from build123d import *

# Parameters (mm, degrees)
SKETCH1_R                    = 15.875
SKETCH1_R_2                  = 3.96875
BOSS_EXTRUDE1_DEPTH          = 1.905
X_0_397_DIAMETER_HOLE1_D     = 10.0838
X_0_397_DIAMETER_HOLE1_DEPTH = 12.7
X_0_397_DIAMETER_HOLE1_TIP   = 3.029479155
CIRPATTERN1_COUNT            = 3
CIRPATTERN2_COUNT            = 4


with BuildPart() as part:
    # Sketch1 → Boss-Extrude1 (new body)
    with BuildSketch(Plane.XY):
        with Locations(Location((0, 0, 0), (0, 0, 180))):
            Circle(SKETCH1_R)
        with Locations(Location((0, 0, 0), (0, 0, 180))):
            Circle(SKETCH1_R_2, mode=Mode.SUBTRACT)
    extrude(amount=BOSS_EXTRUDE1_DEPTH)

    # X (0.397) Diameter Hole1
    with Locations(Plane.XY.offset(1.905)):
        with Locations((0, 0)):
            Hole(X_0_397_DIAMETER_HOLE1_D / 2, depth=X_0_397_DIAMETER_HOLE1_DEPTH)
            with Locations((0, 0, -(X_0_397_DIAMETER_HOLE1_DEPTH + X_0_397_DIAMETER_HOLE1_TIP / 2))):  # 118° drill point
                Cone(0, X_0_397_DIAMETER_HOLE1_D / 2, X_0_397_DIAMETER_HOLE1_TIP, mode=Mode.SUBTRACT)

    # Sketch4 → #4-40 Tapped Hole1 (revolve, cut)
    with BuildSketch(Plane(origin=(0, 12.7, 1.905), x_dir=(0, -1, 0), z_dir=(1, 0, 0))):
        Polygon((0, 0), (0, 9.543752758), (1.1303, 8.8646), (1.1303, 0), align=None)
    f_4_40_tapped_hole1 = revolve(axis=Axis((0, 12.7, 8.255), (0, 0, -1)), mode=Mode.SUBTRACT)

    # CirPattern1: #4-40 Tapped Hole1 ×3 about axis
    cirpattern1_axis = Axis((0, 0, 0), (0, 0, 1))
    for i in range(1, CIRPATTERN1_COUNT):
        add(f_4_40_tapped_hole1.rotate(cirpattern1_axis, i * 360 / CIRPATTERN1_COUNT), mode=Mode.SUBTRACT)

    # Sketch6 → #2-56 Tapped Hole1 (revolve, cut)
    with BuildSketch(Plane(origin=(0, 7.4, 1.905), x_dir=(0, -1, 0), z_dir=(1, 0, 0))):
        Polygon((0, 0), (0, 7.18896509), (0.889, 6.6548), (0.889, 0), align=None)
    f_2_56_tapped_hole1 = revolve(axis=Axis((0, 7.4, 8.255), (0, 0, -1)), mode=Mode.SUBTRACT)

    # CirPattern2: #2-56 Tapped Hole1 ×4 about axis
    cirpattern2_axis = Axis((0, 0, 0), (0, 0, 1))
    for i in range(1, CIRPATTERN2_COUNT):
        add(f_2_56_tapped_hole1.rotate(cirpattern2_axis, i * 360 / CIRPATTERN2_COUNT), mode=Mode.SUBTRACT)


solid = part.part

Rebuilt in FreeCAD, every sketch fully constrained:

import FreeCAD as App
import Part
import Sketcher

V = App.Vector
Q = App.Units.Quantity

doc = App.newDocument("Part")
body = doc.addObject("PartDesign::Body", "Body")

# Sketch on XY plane
sketch1 = doc.addObject("Sketcher::SketchObject", "Sketch")
body.addObject(sketch1)
sketch1.AttachmentSupport = (doc.XY_Plane, [""])
sketch1.MapMode = "FlatFace"
sketch1.addGeometry([
    Part.Circle(V(0, 0, 0), V(0, 0, 1), 15.9),
    Part.Circle(V(0, 0, 0), V(0, 0, 1), 4),
], False)
sketch1.addConstraint([
    Sketcher.Constraint("Coincident", 0, 3, -1, 1),
    Sketcher.Constraint("Coincident", 1, 3, -1, 1),
    Sketcher.Constraint("Diameter", 0, Q("1.25 in")),
    Sketcher.Constraint("Diameter", 1, Q("0.3125 in")),
])
pad1 = doc.addObject("PartDesign::Pad", "Pad")
body.addObject(pad1)
pad1.Profile = sketch1
pad1.Length = Q("0.075 in")

# Sketch on XY plane
sketch2 = doc.addObject("Sketcher::SketchObject", "Sketch001")
body.addObject(sketch2)
sketch2.AttachmentSupport = (doc.XY_Plane, [""])
sketch2.MapMode = "FlatFace"
sketch2.AttachmentOffset = App.Placement(V(0, 0, 0.075 * 25.4), App.Rotation())
sketch2.addGeometry(Part.Circle(V(0, 0, 0), V(0, 0, 1), 5), False)
sketch2.addConstraint([
    Sketcher.Constraint("Coincident", 0, 3, -1, 1),
    Sketcher.Constraint("Diameter", 0, Q("0.397 in")),
])
doc.recompute()
hole = doc.addObject("PartDesign::Hole", "Hole")
body.addObject(hole)
hole.Profile = sketch2
hole.ThreadType = "None"
hole.Diameter = Q("0.397 in")
hole.DepthType = "Dimension"
hole.Depth = Q("0.5 in")
hole.DrillPoint = "Angled"
hole.DrillPointAngle = 118

# Sketch on YZ plane
sketch3 = doc.addObject("Sketcher::SketchObject", "Sketch002")
body.addObject(sketch3)
sketch3.AttachmentSupport = (doc.YZ_Plane, [""])
sketch3.MapMode = "FlatFace"
sketch3.addGeometry([
    Part.LineSegment(V(12.7, -7.6, 0), V(12.7, 1.9, 0)),
    Part.LineSegment(V(12.7, 1.9, 0), V(11.6, 1.9, 0)),
    Part.LineSegment(V(11.6, 1.9, 0), V(11.6, -7, 0)),
    Part.LineSegment(V(11.6, -7, 0), V(12.7, -7.6, 0)),
], False)
sketch3.addGeometry(Part.LineSegment(V(12.7, 1.9, 0), V(12.7, -7.6, 0)), True)  # axis
sketch3.addConstraint([
    Sketcher.Constraint("Coincident", 0, 2, 1, 1),
    Sketcher.Constraint("Coincident", 1, 2, 2, 1),
    Sketcher.Constraint("Coincident", 2, 2, 3, 1),
    Sketcher.Constraint("Coincident", 3, 2, 0, 1),
    Sketcher.Constraint("Vertical", 0),
    Sketcher.Constraint("Horizontal", 1),
    Sketcher.Constraint("Vertical", 2),
    Sketcher.Constraint("Vertical", 4),
    Sketcher.Constraint("Coincident", 4, 1, 0, 2),
    Sketcher.Constraint("Equal", 0, 4),
    Sketcher.Constraint("Angle", 3, Q("-31 deg")),
    Sketcher.Constraint("DistanceX", -1, 1, 0, 2, Q("0.5 in")),
    Sketcher.Constraint("DistanceY", 2, 2, 2, 1, Q("0.349 in")),
    Sketcher.Constraint("DistanceX", 1, 2, 1, 1, Q("0.0445 in")),
    Sketcher.Constraint("DistanceY", -1, 1, 0, 2, Q("0.075 in")),
])
groove = doc.addObject("PartDesign::Groove", "Groove")
body.addObject(groove)
groove.Profile = sketch3
groove.ReferenceAxis = (sketch3, ["Axis0"])
groove.Angle = 360
doc.recompute()

polarpattern = doc.addObject("PartDesign::PolarPattern", "PolarPattern")
body.addObject(polarpattern)
polarpattern.Originals = [groove]
polarpattern.Axis = (doc.Z_Axis, [""])
polarpattern.Angle = 360
polarpattern.Occurrences = 3
body.Tip = polarpattern

# Sketch on YZ plane
sketch4 = doc.addObject("Sketcher::SketchObject", "Sketch003")
body.addObject(sketch4)
sketch4.AttachmentSupport = (doc.YZ_Plane, [""])
sketch4.MapMode = "FlatFace"
sketch4.addGeometry([
    Part.LineSegment(V(7.4, -5.3, 0), V(7.4, 1.9, 0)),
    Part.LineSegment(V(7.4, 1.9, 0), V(6.5, 1.9, 0)),
    Part.LineSegment(V(6.5, 1.9, 0), V(6.5, -4.7, 0)),
    Part.LineSegment(V(6.5, -4.7, 0), V(7.4, -5.3, 0)),
], False)
sketch4.addGeometry(Part.LineSegment(V(7.4, 1.9, 0), V(7.4, -5.3, 0)), True)  # axis
sketch4.addConstraint([
    Sketcher.Constraint("Coincident", 0, 2, 1, 1),
    Sketcher.Constraint("Coincident", 1, 2, 2, 1),
    Sketcher.Constraint("Coincident", 2, 2, 3, 1),
    Sketcher.Constraint("Coincident", 3, 2, 0, 1),
    Sketcher.Constraint("Vertical", 0),
    Sketcher.Constraint("Horizontal", 1),
    Sketcher.Constraint("Vertical", 2),
    Sketcher.Constraint("Vertical", 4),
    Sketcher.Constraint("Coincident", 4, 1, 0, 2),
    Sketcher.Constraint("Equal", 0, 4),
    Sketcher.Constraint("Angle", 3, Q("-31 deg")),
    Sketcher.Constraint("DistanceX", 1, 2, 1, 1, Q("0.035 in")),
    Sketcher.Constraint("DistanceY", 2, 2, 2, 1, Q("0.262 in")),
    Sketcher.Constraint("DistanceY", -1, 1, 0, 2, Q("0.075 in")),
    Sketcher.Constraint("DistanceX", -1, 1, 0, 2, 7.4),
])
groove2 = doc.addObject("PartDesign::Groove", "Groove001")
body.addObject(groove2)
groove2.Profile = sketch4
groove2.ReferenceAxis = (sketch4, ["Axis0"])
groove2.Angle = 360
doc.recompute()

polarpattern2 = doc.addObject("PartDesign::PolarPattern", "PolarPattern001")
body.addObject(polarpattern2)
polarpattern2.Originals = [groove2]
polarpattern2.Axis = (doc.Z_Axis, [""])
polarpattern2.Angle = 360
polarpattern2.Occurrences = 4
body.Tip = polarpattern2

doc.recompute()
